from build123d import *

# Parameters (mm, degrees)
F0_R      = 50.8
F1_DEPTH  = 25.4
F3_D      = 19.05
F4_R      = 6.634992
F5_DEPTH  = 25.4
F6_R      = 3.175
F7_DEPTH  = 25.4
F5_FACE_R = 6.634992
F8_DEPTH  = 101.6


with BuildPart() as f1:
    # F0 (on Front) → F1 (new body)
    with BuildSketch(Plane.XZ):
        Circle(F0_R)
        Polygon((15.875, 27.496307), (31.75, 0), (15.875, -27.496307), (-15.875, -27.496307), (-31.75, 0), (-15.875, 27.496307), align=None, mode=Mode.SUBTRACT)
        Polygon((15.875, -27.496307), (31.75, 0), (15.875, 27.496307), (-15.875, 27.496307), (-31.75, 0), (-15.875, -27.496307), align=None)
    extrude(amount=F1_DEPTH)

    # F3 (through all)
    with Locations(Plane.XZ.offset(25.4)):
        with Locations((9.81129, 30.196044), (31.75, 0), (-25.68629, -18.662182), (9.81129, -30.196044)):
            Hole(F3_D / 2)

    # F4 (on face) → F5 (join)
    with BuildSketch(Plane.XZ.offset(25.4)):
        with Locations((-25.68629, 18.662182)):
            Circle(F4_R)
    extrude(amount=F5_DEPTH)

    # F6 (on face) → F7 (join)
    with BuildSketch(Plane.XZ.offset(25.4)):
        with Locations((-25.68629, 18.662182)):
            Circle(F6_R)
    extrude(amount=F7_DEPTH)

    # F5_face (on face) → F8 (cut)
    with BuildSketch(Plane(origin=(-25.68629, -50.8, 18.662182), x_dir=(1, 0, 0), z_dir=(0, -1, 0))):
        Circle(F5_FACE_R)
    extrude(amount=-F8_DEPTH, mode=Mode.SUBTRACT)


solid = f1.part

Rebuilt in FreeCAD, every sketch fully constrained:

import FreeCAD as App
import Part
import Sketcher

V = App.Vector
Q = App.Units.Quantity

doc = App.newDocument("Part")
params = doc.addObject("Spreadsheet::Sheet", "Params")
for row, (alias, value) in enumerate([
    ("sketch1_diameter", "4 in"),
    ("pad1_length", "1 in"),
    ("sketch2_diameter", "0.75 in"),
    ("hole_diameter", "0.75 in"),
    ("pad2_length", "1 in"),
    ("sketch4_diameter", "0.25 in"),
    ("pad3_length", "1 in"),
    ("pocket1_length", "4 in"),
], start=1):
    params.set(f"A{row}", alias)
    params.set(f"B{row}", "=" + value)
    params.setAlias(f"B{row}", alias)

body = doc.addObject("PartDesign::Body", "Body")

sketch1 = doc.addObject("Sketcher::SketchObject", "Sketch")
body.addObject(sketch1)
sketch1.AttachmentSupport = (doc.XZ_Plane, [""])
sketch1.MapMode = "FlatFace"
sketch1.addGeometry(Part.Circle(V(0, 0, 0), V(0, 0, 1), 50.8), False)
sketch1.addConstraint([
    Sketcher.Constraint("Coincident", 0, 3, -1, 1),
    Sketcher.Constraint("Diameter", 0, Q("4 in")),
])
sketch1.setExpression("Constraints[1]", "Params.sketch1_diameter")
pad1 = doc.addObject("PartDesign::Pad", "Pad")
body.addObject(pad1)
pad1.Profile = sketch1
pad1.setExpression("Length", "Params.pad1_length")

sketch2 = doc.addObject("Sketcher::SketchObject", "Sketch001")
body.addObject(sketch2)
sketch2.AttachmentSupport = (doc.XZ_Plane, [""])
sketch2.MapMode = "FlatFace"
sketch2.AttachmentOffset = App.Placement(V(0, 0, 1 * 25.4), App.Rotation())
sketch2.addGeometry([
    Part.Circle(V(9.81129, 30.196044, 0), V(0, 0, 1), 9.525),
    Part.Circle(V(31.75, 0, 0), V(0, 0, 1), 9.525),
    Part.Circle(V(-25.68629, -18.662182, 0), V(0, 0, 1), 9.525),
    Part.Circle(V(9.81129, -30.196044, 0), V(0, 0, 1), 9.525),
], False)
sketch2.addConstraint([
    Sketcher.Constraint("Equal", 0, 1),
    Sketcher.Constraint("Equal", 1, 2),
    Sketcher.Constraint("Equal", 2, 3),
    Sketcher.Constraint("Symmetric", 0, 3, 3, 3, -1),
    Sketcher.Constraint("PointOnObject", 1, 3, -1),
    Sketcher.Constraint("Diameter", 0, Q("0.75 in")),
    Sketcher.Constraint("DistanceX", -1, 1, 1, 3, Q("1.25 in")),
    Sketcher.Constraint("DistanceX", -1, 1, 0, 3, Q("9.81129 mm")),
    Sketcher.Constraint("DistanceX", 2, 3, -1, 1, Q("25.68629 mm")),
    Sketcher.Constraint("DistanceY", 3, 3, 2, 3, Q("11.533862 mm")),
    Sketcher.Constraint("DistanceY", -1, 1, 0, 3, Q("30.196044 mm")),
])
sketch2.setExpression("Constraints[5]", "Params.sketch2_diameter")
doc.recompute()
hole = doc.addObject("PartDesign::Hole", "Hole")
body.addObject(hole)
hole.Profile = sketch2
hole.ThreadType = "None"
hole.setExpression("Diameter", "Params.hole_diameter")
hole.DepthType = "ThroughAll"

sketch3 = doc.addObject("Sketcher::SketchObject", "Sketch002")
body.addObject(sketch3)
sketch3.AttachmentSupport = (doc.XZ_Plane, [""])
sketch3.MapMode = "FlatFace"
sketch3.AttachmentOffset = App.Placement(V(0, 0, 1 * 25.4), App.Rotation())
sketch3.addGeometry(Part.Circle(V(-25.68629, 18.662182, 0), V(0, 0, 1), 6.634992), False)
sketch3.addConstraint([
    Sketcher.Constraint("Diameter", 0, Q("13.269984 mm")),
    Sketcher.Constraint("DistanceX", 0, 3, -1, 1, Q("25.68629 mm")),
    Sketcher.Constraint("DistanceY", -1, 1, 0, 3, Q("18.662182 mm")),
])
pad2 = doc.addObject("PartDesign::Pad", "Pad001")
body.addObject(pad2)
pad2.Profile = sketch3
pad2.setExpression("Length", "Params.pad2_length")

sketch4 = doc.addObject("Sketcher::SketchObject", "Sketch003")
body.addObject(sketch4)
sketch4.AttachmentSupport = (doc.XZ_Plane, [""])
sketch4.MapMode = "FlatFace"
sketch4.AttachmentOffset = App.Placement(V(0, 0, 1 * 25.4), App.Rotation())
sketch4.addGeometry(Part.Circle(V(-25.68629, 18.662182, 0), V(0, 0, 1), 3.175), False)
sketch4.addConstraint([
    Sketcher.Constraint("Diameter", 0, Q("0.25 in")),
    Sketcher.Constraint("DistanceX", 0, 3, -1, 1, Q("25.68629 mm")),
    Sketcher.Constraint("DistanceY", -1, 1, 0, 3, Q("18.662182 mm")),
])
sketch4.setExpression("Constraints[0]", "Params.sketch4_diameter")
pad3 = doc.addObject("PartDesign::Pad", "Pad002")
body.addObject(pad3)
pad3.Profile = sketch4
pad3.setExpression("Length", "Params.pad3_length")

sketch5 = doc.addObject("Sketcher::SketchObject", "Sketch004")
body.addObject(sketch5)
sketch5.AttachmentSupport = (doc.XZ_Plane, [""])
sketch5.MapMode = "FlatFace"
sketch5.AttachmentOffset = App.Placement(V(0, 0, 2 * 25.4), App.Rotation())
sketch5.addGeometry(Part.Circle(V(-25.68629, 18.662182, 0), V(0, 0, 1), 6.634992), False)
sketch5.addConstraint([
    Sketcher.Constraint("Diameter", 0, Q("13.269984 mm")),
    Sketcher.Constraint("DistanceX", 0, 3, -1, 1, Q("25.68629 mm")),
    Sketcher.Constraint("DistanceY", -1, 1, 0, 3, Q("18.662182 mm")),
])
pocket1 = doc.addObject("PartDesign::Pocket", "Pocket")
body.addObject(pocket1)
pocket1.Profile = sketch5
pocket1.setExpression("Length", "Params.pocket1_length")

doc.recompute()
